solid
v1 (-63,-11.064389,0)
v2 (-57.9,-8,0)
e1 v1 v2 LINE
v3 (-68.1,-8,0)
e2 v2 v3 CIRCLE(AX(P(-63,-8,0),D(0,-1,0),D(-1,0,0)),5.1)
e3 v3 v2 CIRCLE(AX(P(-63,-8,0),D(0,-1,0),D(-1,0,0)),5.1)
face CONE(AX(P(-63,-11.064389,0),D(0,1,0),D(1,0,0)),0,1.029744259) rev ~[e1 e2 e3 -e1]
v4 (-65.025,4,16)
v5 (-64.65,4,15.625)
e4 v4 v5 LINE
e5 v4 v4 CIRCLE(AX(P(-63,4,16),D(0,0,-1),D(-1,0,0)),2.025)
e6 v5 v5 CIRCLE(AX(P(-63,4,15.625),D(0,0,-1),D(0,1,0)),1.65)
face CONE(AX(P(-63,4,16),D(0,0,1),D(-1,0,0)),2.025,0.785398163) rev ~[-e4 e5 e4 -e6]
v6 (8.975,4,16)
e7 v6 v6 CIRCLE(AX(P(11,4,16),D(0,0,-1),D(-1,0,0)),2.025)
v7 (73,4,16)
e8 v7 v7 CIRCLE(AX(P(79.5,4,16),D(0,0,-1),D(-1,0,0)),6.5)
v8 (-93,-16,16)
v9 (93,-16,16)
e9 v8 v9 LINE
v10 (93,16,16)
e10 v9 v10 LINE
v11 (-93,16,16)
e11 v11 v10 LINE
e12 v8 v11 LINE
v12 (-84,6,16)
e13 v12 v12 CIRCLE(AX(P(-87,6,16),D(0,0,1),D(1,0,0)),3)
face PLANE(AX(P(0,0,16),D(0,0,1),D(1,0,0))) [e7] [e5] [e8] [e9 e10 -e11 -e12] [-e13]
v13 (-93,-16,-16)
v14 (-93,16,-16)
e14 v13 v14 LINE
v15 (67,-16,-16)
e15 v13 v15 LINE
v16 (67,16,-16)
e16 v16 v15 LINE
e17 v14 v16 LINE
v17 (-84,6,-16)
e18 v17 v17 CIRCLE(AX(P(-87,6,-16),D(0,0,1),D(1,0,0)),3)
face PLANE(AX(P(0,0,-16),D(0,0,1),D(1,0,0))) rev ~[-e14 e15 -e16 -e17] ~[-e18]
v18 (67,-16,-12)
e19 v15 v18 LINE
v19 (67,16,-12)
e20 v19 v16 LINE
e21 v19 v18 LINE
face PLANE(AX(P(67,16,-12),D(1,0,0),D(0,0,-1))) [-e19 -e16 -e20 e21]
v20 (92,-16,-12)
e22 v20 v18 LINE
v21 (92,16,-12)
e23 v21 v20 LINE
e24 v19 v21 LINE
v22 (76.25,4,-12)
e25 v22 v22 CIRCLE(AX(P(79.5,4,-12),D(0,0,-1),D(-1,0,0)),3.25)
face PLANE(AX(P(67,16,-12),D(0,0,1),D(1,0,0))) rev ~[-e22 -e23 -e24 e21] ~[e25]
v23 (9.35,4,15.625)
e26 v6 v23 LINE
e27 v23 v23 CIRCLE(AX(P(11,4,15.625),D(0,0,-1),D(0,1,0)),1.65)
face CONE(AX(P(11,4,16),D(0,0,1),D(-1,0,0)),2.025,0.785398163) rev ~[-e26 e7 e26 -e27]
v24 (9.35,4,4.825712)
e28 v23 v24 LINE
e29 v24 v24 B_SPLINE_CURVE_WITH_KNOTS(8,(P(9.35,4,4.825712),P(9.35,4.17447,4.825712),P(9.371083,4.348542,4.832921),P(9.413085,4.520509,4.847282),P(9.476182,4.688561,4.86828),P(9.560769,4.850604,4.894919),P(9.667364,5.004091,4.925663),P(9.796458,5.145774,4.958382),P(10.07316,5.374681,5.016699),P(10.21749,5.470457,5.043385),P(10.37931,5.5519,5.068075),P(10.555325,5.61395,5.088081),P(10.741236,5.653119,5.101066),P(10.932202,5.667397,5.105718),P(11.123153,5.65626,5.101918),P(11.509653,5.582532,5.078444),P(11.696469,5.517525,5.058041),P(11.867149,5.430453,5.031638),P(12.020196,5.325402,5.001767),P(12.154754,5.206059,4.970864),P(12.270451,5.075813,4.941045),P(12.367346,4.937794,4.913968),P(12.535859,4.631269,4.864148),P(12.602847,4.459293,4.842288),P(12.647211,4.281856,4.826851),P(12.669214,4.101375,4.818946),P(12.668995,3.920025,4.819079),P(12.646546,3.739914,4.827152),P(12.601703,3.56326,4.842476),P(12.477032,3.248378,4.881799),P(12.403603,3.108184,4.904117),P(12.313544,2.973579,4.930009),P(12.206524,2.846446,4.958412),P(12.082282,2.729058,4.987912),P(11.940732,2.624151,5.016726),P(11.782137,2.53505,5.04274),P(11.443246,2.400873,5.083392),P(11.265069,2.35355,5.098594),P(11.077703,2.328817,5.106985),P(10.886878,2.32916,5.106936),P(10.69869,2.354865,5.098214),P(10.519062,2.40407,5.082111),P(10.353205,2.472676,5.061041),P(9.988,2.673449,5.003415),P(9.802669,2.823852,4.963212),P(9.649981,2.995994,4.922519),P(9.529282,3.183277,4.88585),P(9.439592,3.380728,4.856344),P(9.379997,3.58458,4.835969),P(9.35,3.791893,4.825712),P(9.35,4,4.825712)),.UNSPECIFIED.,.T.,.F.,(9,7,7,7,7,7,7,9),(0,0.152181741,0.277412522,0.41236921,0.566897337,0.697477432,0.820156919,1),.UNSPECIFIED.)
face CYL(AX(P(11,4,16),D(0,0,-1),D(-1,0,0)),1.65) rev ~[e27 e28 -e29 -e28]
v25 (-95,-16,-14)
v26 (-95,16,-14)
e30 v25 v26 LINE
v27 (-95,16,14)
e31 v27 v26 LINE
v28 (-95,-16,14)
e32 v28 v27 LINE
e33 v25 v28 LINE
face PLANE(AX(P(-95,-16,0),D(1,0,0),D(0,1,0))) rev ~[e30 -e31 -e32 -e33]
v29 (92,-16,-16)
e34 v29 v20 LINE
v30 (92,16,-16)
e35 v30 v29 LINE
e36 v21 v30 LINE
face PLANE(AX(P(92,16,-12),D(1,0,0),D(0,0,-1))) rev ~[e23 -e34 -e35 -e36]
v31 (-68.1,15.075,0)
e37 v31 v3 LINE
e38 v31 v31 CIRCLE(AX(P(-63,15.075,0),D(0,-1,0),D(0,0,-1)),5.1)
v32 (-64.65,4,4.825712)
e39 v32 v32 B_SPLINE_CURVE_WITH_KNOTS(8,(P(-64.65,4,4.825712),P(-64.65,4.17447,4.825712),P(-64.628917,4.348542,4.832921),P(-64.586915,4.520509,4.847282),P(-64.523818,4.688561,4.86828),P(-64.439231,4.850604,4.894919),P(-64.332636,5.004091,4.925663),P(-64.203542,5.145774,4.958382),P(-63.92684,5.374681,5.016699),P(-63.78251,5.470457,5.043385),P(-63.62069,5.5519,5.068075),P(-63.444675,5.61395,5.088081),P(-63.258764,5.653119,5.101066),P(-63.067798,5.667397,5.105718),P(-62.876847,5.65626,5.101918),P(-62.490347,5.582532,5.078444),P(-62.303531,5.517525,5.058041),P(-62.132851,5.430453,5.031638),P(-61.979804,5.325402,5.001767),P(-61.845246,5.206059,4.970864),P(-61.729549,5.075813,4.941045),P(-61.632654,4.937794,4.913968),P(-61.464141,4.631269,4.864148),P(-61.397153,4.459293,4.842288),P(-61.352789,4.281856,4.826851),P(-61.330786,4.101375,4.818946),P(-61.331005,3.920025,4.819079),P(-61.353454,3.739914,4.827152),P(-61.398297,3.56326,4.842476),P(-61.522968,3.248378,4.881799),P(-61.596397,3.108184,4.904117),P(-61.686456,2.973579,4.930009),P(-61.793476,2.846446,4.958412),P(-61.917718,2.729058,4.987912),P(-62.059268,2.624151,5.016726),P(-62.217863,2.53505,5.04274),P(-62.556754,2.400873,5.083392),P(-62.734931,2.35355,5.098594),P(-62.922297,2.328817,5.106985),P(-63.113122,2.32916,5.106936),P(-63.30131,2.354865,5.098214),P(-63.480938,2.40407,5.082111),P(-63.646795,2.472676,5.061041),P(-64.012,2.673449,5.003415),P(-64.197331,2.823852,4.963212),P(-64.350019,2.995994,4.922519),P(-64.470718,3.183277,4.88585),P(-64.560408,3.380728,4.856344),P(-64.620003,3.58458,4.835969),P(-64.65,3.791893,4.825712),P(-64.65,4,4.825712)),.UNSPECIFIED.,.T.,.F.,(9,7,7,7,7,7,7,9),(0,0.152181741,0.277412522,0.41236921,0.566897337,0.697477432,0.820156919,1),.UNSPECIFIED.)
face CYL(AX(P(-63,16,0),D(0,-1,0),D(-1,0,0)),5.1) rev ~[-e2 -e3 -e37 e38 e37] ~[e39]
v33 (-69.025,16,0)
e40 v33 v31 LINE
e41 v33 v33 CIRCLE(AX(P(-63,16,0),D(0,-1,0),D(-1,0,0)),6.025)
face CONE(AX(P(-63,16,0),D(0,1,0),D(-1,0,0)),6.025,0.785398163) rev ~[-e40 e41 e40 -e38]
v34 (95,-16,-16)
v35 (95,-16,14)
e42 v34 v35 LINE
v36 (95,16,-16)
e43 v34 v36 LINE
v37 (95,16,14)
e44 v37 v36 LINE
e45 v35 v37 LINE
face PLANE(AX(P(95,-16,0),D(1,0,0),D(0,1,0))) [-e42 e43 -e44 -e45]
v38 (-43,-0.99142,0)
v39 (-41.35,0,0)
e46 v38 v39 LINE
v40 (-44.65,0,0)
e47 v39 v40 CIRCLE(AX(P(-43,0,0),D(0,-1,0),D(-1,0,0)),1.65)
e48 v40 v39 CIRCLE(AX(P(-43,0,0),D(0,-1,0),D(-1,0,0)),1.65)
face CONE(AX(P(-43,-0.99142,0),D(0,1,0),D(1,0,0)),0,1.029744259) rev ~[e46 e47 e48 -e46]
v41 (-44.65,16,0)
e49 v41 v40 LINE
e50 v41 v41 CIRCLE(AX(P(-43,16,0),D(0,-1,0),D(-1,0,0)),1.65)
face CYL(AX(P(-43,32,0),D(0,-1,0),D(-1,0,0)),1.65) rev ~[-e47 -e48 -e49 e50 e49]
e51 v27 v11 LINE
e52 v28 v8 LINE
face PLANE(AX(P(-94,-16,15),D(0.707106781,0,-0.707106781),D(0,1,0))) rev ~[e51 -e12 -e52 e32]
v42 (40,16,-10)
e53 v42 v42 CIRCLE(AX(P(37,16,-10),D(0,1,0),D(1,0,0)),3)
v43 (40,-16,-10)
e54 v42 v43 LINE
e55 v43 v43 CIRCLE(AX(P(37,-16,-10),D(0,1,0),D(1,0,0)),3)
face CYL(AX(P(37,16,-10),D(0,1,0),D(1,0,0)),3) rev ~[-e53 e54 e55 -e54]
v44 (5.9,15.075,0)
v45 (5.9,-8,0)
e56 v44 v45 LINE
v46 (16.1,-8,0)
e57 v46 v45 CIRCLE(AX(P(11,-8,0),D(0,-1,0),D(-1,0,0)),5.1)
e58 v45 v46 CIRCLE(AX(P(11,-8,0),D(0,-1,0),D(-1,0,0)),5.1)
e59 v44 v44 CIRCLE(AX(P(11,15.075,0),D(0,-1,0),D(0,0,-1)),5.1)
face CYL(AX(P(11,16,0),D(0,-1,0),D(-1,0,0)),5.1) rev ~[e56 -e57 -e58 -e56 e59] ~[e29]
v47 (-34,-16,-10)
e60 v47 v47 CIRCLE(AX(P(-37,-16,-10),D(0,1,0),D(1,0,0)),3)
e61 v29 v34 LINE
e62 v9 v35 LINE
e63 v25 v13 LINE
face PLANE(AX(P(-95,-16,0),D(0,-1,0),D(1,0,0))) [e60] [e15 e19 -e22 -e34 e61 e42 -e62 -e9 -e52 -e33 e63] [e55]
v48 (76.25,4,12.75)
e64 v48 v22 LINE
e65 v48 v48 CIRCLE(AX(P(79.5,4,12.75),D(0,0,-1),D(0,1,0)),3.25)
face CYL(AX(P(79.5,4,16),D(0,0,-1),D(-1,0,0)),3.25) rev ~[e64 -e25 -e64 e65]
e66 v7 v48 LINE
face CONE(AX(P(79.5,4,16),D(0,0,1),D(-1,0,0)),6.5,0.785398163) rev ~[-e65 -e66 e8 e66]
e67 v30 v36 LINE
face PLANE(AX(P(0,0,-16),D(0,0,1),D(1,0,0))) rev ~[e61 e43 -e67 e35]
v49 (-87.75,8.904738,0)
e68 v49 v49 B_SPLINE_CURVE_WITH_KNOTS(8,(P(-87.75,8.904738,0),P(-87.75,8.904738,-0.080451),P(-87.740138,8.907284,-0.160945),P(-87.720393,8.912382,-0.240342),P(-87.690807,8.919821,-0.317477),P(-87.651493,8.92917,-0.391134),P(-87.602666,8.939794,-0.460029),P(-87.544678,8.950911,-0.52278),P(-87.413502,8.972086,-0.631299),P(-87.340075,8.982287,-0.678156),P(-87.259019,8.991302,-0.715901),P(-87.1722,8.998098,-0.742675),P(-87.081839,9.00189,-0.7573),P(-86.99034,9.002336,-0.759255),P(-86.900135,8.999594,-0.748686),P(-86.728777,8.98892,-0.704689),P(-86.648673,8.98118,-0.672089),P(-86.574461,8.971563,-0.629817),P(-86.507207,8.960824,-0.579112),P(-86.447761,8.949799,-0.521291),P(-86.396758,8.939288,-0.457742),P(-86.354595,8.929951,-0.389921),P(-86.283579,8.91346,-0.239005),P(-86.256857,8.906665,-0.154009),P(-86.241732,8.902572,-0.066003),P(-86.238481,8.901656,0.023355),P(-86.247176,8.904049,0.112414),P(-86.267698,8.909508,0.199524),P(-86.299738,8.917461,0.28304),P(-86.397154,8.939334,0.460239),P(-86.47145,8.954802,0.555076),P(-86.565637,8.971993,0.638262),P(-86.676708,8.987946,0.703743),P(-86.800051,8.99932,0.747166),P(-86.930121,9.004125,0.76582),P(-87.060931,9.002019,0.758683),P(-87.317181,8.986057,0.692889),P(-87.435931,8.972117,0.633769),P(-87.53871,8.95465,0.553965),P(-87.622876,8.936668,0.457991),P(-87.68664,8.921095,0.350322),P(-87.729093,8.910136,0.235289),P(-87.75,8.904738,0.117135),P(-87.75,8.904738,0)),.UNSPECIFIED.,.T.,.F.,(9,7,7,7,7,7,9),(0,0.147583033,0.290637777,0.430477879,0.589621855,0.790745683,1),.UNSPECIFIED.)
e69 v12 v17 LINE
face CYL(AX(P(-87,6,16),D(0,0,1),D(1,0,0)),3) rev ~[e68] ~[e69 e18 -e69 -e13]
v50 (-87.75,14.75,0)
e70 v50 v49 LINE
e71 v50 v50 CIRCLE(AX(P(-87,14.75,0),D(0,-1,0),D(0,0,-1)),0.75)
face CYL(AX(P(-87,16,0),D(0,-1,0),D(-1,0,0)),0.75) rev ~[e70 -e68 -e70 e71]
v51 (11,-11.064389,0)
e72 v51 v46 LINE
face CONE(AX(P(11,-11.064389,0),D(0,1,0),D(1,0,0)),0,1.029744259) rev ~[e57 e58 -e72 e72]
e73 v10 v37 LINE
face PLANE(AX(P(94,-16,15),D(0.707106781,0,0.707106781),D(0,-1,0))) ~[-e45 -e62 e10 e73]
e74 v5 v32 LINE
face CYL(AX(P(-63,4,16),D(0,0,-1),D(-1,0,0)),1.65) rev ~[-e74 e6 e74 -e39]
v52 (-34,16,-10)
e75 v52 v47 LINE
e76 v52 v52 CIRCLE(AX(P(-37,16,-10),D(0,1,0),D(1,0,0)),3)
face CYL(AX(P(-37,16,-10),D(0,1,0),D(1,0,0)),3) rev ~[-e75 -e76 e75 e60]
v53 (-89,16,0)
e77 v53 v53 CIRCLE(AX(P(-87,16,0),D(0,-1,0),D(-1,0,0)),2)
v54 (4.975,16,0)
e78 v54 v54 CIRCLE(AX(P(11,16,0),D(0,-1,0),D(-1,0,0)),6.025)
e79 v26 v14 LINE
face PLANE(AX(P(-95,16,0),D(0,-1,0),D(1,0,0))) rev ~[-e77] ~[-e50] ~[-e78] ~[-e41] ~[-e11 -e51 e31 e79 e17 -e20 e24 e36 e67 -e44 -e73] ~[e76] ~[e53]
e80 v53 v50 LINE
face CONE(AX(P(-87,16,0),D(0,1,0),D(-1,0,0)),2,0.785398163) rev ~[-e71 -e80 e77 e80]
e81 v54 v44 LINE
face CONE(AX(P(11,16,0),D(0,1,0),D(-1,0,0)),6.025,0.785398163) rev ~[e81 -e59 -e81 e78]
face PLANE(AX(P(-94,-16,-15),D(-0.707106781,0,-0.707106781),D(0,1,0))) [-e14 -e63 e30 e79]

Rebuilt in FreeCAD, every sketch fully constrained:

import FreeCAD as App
import Part
import Sketcher
Q = App.Units.Quantity


def edges_at(feature, points):
    """Names of the edges that pass closest to the given points."""
    edges = feature.Shape.Edges
    near = lambda p: min(range(len(edges)), key=lambda i: edges[i].distToShape(Part.Vertex(*p))[0])
    return sorted({f"Edge{near(p) + 1}" for p in points})


def add_polygon(sketch, points):
    """Adds a closed chain of lines whose ends are joined by coincident constraints."""
    first, n = sketch.GeometryCount, len(points)
    for a, b in zip(points, points[1:] + points[:1]):
        sketch.addGeometry(Part.LineSegment(App.Vector(*a, 0), App.Vector(*b, 0)), False)
    for i in range(n):
        sketch.addConstraint(Sketcher.Constraint("Coincident", first + i, 2, first + (i + 1) % n, 1))

doc = App.newDocument("Part")
body = doc.addObject("PartDesign::Body", "Body")

# Sketch on XY plane
sketch1 = body.newObject("Sketcher::SketchObject", "Sketch")
sketch1.AttachmentSupport = (doc.getObject("XY_Plane"), [""])
sketch1.MapMode = "FlatFace"
add_polygon(sketch1, [(-95, 16), (-95, -16), (95, -16), (95, 16)])  # lines 0-3
sketch1.addConstraint([
    Sketcher.Constraint("Vertical", 0),
    Sketcher.Constraint("Horizontal", 1),
    Sketcher.Constraint("Vertical", 2),
    Sketcher.Constraint("Horizontal", 3),
    Sketcher.Constraint("Symmetric", 0, 2, 2, 2, -1, 1),
    Sketcher.Constraint("DistanceX", 1, 1, 1, 2, Q("190 mm")),
    Sketcher.Constraint("DistanceY", 0, 2, 0, 1, Q("32 mm")),
])
pad1 = body.newObject("PartDesign::Pad", "Pad")
pad1.Profile = sketch1
pad1.Length = 32
pad1.Midplane = True
doc.recompute()

chamfer = body.newObject("PartDesign::Chamfer", "Chamfer")
chamfer.Base = (pad1, edges_at(pad1, [(-95, 0, 16), (95, 0, 16), (-95, 0, -16)]))
chamfer.Size = 2

# Sketch on XZ plane
sketch2 = body.newObject("Sketcher::SketchObject", "Sketch001")
sketch2.AttachmentSupport = (doc.getObject("XZ_Plane"), [""])
sketch2.MapMode = "FlatFace"
sketch2.AttachmentOffset = App.Placement(App.Vector(0, 0, -16), App.Rotation())
add_polygon(sketch2, [(67, -16), (67, -12), (92, -12), (92, -16)])  # lines 0-3
sketch2.addConstraint([
    Sketcher.Constraint("Vertical", 0),
    Sketcher.Constraint("Horizontal", 1),
    Sketcher.Constraint("Vertical", 2),
    Sketcher.Constraint("Horizontal", 3),
    Sketcher.Constraint("DistanceX", 1, 1, 1, 2, Q("25 mm")),
    Sketcher.Constraint("DistanceY", 0, 1, 0, 2, Q("4 mm")),
    Sketcher.Constraint("DistanceX", -1, 1, 0, 2, Q("67 mm")),
    Sketcher.Constraint("DistanceY", 0, 2, -1, 1, Q("12 mm")),
])
pocket1 = body.newObject("PartDesign::Pocket", "Pocket")
pocket1.Profile = sketch2
pocket1.Type = "ThroughAll"
pocket1.Reversed = True

# Sketch on XZ plane
sketch3 = body.newObject("Sketcher::SketchObject", "Sketch002")
sketch3.AttachmentSupport = (doc.getObject("XZ_Plane"), [""])
sketch3.MapMode = "FlatFace"
sketch3.AttachmentOffset = App.Placement(App.Vector(0, 0, -16), App.Rotation())
sketch3.addGeometry([
    Part.Circle(App.Vector(-63, 0, 0), App.Vector(0, 0, 1), 5.1),
    Part.Circle(App.Vector(11, 0, 0), App.Vector(0, 0, 1), 5.1),
], False)
sketch3.addConstraint([
    Sketcher.Constraint("Equal", 0, 1),
    Sketcher.Constraint("PointOnObject", 0, 3, -1),
    Sketcher.Constraint("PointOnObject", 1, 3, -1),
    Sketcher.Constraint("Diameter", 0, Q("10.2 mm")),
    Sketcher.Constraint("DistanceX", 0, 3, -1, 1, Q("63 mm")),
    Sketcher.Constraint("DistanceX", -1, 1, 1, 3, Q("11 mm")),
])
doc.recompute()
hole = body.newObject("PartDesign::Hole", "Hole")
hole.Profile = sketch3
hole.ThreadType = "None"
hole.Diameter = 10.2
hole.DepthType = "Dimension"
hole.Depth = 24
hole.DrillPoint = "Angled"
hole.DrillPointAngle = 118
hole.HoleCutType = "Countersink"
hole.HoleCutDiameter = 12.05
hole.HoleCutCountersinkAngle = 90
hole.Reversed = True

# Sketch on XY plane
sketch4 = body.newObject("Sketcher::SketchObject", "Sketch003")
sketch4.AttachmentSupport = (doc.getObject("XY_Plane"), [""])
sketch4.MapMode = "FlatFace"
sketch4.AttachmentOffset = App.Placement(App.Vector(0, 0, 16), App.Rotation())
sketch4.addGeometry([
    Part.Circle(App.Vector(-63, 4, 0), App.Vector(0, 0, 1), 1.65),
    Part.Circle(App.Vector(11, 4, 0), App.Vector(0, 0, 1), 1.65),
], False)
sketch4.addConstraint([
    Sketcher.Constraint("Equal", 0, 1),
    Sketcher.Constraint("Horizontal", 0, 3, 1, 3),
    Sketcher.Constraint("Diameter", 0, Q("3.3 mm")),
    Sketcher.Constraint("DistanceX", 0, 3, -1, 1, Q("63 mm")),
    Sketcher.Constraint("DistanceY", -1, 1, 0, 3, Q("4 mm")),
    Sketcher.Constraint("DistanceX", -1, 1, 1, 3, Q("11 mm")),
])
doc.recompute()
hole2 = body.newObject("PartDesign::Hole", "Hole001")
hole2.Profile = sketch4
hole2.ThreadType = "None"
hole2.Diameter = 3.3
hole2.DepthType = "Dimension"
hole2.Depth = 11.5
hole2.DrillPoint = "Angled"
hole2.DrillPointAngle = 118
hole2.HoleCutType = "Countersink"
hole2.HoleCutDiameter = 4.05
hole2.HoleCutCountersinkAngle = 90

# Sketch on XY plane
sketch5 = body.newObject("Sketcher::SketchObject", "Sketch004")
sketch5.AttachmentSupport = (doc.getObject("XY_Plane"), [""])
sketch5.MapMode = "FlatFace"
sketch5.AttachmentOffset = App.Placement(App.Vector(0, 0, 16), App.Rotation())
sketch5.addGeometry(Part.Circle(App.Vector(-87, 6, 0), App.Vector(0, 0, 1), 3), False)
sketch5.addConstraint([
    Sketcher.Constraint("Diameter", 0, Q("6 mm")),
    Sketcher.Constraint("DistanceX", 0, 3, -1, 1, Q("87 mm")),
    Sketcher.Constraint("DistanceY", -1, 1, 0, 3, Q("6 mm")),
])
pocket2 = body.newObject("PartDesign::Pocket", "Pocket001")
pocket2.Profile = sketch5
pocket2.Type = "ThroughAll"

# Sketch on XZ plane
sketch6 = body.newObject("Sketcher::SketchObject", "Sketch005")
sketch6.AttachmentSupport = (doc.getObject("XZ_Plane"), [""])
sketch6.MapMode = "FlatFace"
sketch6.AttachmentOffset = App.Placement(App.Vector(0, 0, -16), App.Rotation())
sketch6.addGeometry(Part.Circle(App.Vector(-87, 0, 0), App.Vector(0, 0, 1), 0.75), False)
sketch6.addConstraint([
    Sketcher.Constraint("PointOnObject", 0, 3, -1),
    Sketcher.Constraint("Diameter", 0, Q("1.5 mm")),
    Sketcher.Constraint("DistanceX", 0, 3, -1, 1, Q("87 mm")),
])
doc.recompute()
hole3 = body.newObject("PartDesign::Hole", "Hole002")
hole3.Profile = sketch6
hole3.ThreadType = "None"
hole3.Diameter = 1.5
hole3.DepthType = "Dimension"
hole3.Depth = 10
hole3.DrillPoint = "Angled"
hole3.DrillPointAngle = 118
hole3.HoleCutType = "Countersink"
hole3.HoleCutDiameter = 4
hole3.HoleCutCountersinkAngle = 90
hole3.Reversed = True

# Sketch on XZ plane
sketch7 = body.newObject("Sketcher::SketchObject", "Sketch006")
sketch7.AttachmentSupport = (doc.getObject("XZ_Plane"), [""])
sketch7.MapMode = "FlatFace"
sketch7.AttachmentOffset = App.Placement(App.Vector(0, 0, -16), App.Rotation())
sketch7.addGeometry(Part.Circle(App.Vector(-43, 0, 0), App.Vector(0, 0, 1), 1.65), False)
sketch7.addConstraint([
    Sketcher.Constraint("PointOnObject", 0, 3, -1),
    Sketcher.Constraint("Diameter", 0, Q("3.3 mm")),
    Sketcher.Constraint("DistanceX", 0, 3, -1, 1, Q("43 mm")),
])
doc.recompute()
hole4 = body.newObject("PartDesign::Hole", "Hole003")
hole4.Profile = sketch7
hole4.ThreadType = "None"
hole4.Diameter = 3.3
hole4.DepthType = "Dimension"
hole4.Depth = 16
hole4.DrillPoint = "Angled"
hole4.DrillPointAngle = 118
hole4.Reversed = True

# Sketch on XZ plane
sketch8 = body.newObject("Sketcher::SketchObject", "Sketch007")
sketch8.AttachmentSupport = (doc.getObject("XZ_Plane"), [""])
sketch8.MapMode = "FlatFace"
sketch8.AttachmentOffset = App.Placement(App.Vector(0, 0, -16), App.Rotation())
sketch8.addGeometry([
    Part.Circle(App.Vector(-37, -10, 0), App.Vector(0, 0, 1), 3),
    Part.Circle(App.Vector(37, -10, 0), App.Vector(0, 0, 1), 3),
], False)
sketch8.addConstraint([
    Sketcher.Constraint("Equal", 0, 1),
    Sketcher.Constraint("Symmetric", 0, 3, 1, 3, -2),
    Sketcher.Constraint("Diameter", 0, Q("6 mm")),
    Sketcher.Constraint("DistanceX", 0, 3, -1, 1, Q("37 mm")),
    Sketcher.Constraint("DistanceY", 0, 3, -1, 1, Q("10 mm")),
])
pocket3 = body.newObject("PartDesign::Pocket", "Pocket002")
pocket3.Profile = sketch8
pocket3.Type = "ThroughAll"
pocket3.Reversed = True

# Sketch on XY plane
sketch9 = body.newObject("Sketcher::SketchObject", "Sketch008")
sketch9.AttachmentSupport = (doc.getObject("XY_Plane"), [""])
sketch9.MapMode = "FlatFace"
sketch9.AttachmentOffset = App.Placement(App.Vector(0, 0, 16), App.Rotation())
sketch9.addGeometry(Part.Circle(App.Vector(79.5, 4, 0), App.Vector(0, 0, 1), 3.25), False)
sketch9.addConstraint([
    Sketcher.Constraint("Diameter", 0, Q("6.5 mm")),
    Sketcher.Constraint("DistanceY", -1, 1, 0, 3, Q("4 mm")),
    Sketcher.Constraint("DistanceX", -1, 1, 0, 3, Q("79.5 mm")),
])
doc.recompute()
hole5 = body.newObject("PartDesign::Hole", "Hole004")
hole5.Profile = sketch9
hole5.ThreadType = "None"
hole5.Diameter = 6.5
hole5.DepthType = "ThroughAll"
hole5.HoleCutType = "Countersink"
hole5.HoleCutDiameter = 13
hole5.HoleCutCountersinkAngle = 90

doc.recompute()
